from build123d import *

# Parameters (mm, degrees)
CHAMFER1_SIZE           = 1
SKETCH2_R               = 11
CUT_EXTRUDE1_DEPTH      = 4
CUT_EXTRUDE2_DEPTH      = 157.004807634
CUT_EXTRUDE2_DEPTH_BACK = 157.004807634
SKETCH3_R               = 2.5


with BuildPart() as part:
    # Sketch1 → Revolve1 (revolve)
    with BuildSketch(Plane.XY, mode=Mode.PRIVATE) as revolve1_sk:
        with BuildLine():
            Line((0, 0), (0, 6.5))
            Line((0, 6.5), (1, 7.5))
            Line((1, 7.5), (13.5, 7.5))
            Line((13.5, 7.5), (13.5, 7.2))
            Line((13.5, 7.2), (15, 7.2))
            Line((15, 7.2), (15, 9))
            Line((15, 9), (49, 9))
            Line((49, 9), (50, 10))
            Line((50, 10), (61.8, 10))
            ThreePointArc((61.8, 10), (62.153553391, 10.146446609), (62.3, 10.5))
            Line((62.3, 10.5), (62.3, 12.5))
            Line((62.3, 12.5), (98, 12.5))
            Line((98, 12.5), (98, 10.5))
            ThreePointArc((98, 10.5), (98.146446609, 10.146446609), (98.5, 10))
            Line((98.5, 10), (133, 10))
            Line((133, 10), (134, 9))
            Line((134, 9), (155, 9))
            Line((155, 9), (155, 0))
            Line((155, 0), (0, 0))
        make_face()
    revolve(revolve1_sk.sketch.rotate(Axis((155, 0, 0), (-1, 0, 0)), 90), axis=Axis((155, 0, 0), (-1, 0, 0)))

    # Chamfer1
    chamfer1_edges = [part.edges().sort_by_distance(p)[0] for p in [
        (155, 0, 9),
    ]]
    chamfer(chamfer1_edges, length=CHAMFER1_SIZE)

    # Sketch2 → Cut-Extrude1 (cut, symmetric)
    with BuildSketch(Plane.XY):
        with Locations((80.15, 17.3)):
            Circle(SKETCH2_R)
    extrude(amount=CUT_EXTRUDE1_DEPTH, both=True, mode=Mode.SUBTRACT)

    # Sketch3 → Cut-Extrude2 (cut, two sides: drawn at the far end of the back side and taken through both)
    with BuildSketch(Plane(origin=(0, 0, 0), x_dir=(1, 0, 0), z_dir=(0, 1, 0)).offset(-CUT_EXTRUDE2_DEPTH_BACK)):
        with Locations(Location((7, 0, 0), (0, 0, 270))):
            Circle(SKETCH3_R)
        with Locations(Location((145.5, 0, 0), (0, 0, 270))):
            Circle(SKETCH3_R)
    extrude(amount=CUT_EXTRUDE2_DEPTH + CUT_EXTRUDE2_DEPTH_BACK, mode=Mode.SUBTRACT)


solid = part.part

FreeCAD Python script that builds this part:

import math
import FreeCAD as App
import Part
import Sketcher
Q = App.Units.Quantity


def edges_at(feature, points):
    """Names of the edges that pass closest to the given points."""
    edges = feature.Shape.Edges
    near = lambda p: min(range(len(edges)), key=lambda i: edges[i].distToShape(Part.Vertex(*p))[0])
    return sorted({f"Edge{near(p) + 1}" for p in points})

doc = App.newDocument("Part")
body = doc.addObject("PartDesign::Body", "Body")

# Sketch on XY plane
sketch1 = doc.addObject("Sketcher::SketchObject", "Sketch")
body.addObject(sketch1)
sketch1.AttachmentSupport = (doc.XY_Plane, [""])
sketch1.MapMode = "FlatFace"
sketch1.addGeometry([
    Part.LineSegment(App.Vector(0, 6.5, 0), App.Vector(0, 0, 0)),  # 0
    Part.LineSegment(App.Vector(0, 0, 0), App.Vector(155, 0, 0)),  # 1
    Part.LineSegment(App.Vector(155, 0, 0), App.Vector(155, 9, 0)),  # 2
    Part.LineSegment(App.Vector(155, 9, 0), App.Vector(134, 9, 0)),  # 3
    Part.LineSegment(App.Vector(134, 9, 0), App.Vector(133, 10, 0)),  # 4
    Part.LineSegment(App.Vector(133, 10, 0), App.Vector(98.5, 10, 0)),  # 5
    Part.ArcOfCircle(Part.Circle(App.Vector(98.5, 10.5, 0), App.Vector(0, 0, 1), 0.5), math.radians(180), math.radians(270)),  # 6
    Part.LineSegment(App.Vector(98, 10.5, 0), App.Vector(98, 12.5, 0)),  # 7
    Part.LineSegment(App.Vector(98, 12.5, 0), App.Vector(62.3, 12.5, 0)),  # 8
    Part.LineSegment(App.Vector(62.3, 12.5, 0), App.Vector(62.3, 10.5, 0)),  # 9
    Part.ArcOfCircle(Part.Circle(App.Vector(61.8, 10.5, 0), App.Vector(0, 0, 1), 0.5), math.radians(-90), math.radians(0)),  # 10
    Part.LineSegment(App.Vector(61.8, 10, 0), App.Vector(50, 10, 0)),  # 11
    Part.LineSegment(App.Vector(50, 10, 0), App.Vector(49, 9, 0)),  # 12
    Part.LineSegment(App.Vector(49, 9, 0), App.Vector(15, 9, 0)),  # 13
    Part.LineSegment(App.Vector(15, 9, 0), App.Vector(15, 7.2, 0)),  # 14
    Part.LineSegment(App.Vector(15, 7.2, 0), App.Vector(13.5, 7.2, 0)),  # 15
    Part.LineSegment(App.Vector(13.5, 7.2, 0), App.Vector(13.5, 7.5, 0)),  # 16
    Part.LineSegment(App.Vector(13.5, 7.5, 0), App.Vector(1, 7.5, 0)),  # 17
    Part.LineSegment(App.Vector(1, 7.5, 0), App.Vector(0, 6.5, 0)),  # 18
], False)
sketch1.addConstraint([
    Sketcher.Constraint("Coincident", 0, 2, 1, 1),
    Sketcher.Constraint("Coincident", 1, 2, 2, 1),
    Sketcher.Constraint("Coincident", 2, 2, 3, 1),
    Sketcher.Constraint("Coincident", 3, 2, 4, 1),
    Sketcher.Constraint("Coincident", 4, 2, 5, 1),
    Sketcher.Constraint("Tangent", 5, 2, 6, 2),
    Sketcher.Constraint("Tangent", 6, 1, 7, 1),
    Sketcher.Constraint("Coincident", 7, 2, 8, 1),
    Sketcher.Constraint("Coincident", 8, 2, 9, 1),
    Sketcher.Constraint("Tangent", 9, 2, 10, 2),
    Sketcher.Constraint("Tangent", 10, 1, 11, 1),
    Sketcher.Constraint("Coincident", 11, 2, 12, 1),
    Sketcher.Constraint("Coincident", 12, 2, 13, 1),
    Sketcher.Constraint("Coincident", 13, 2, 14, 1),
    Sketcher.Constraint("Coincident", 14, 2, 15, 1),
    Sketcher.Constraint("Coincident", 15, 2, 16, 1),
    Sketcher.Constraint("Coincident", 16, 2, 17, 1),
    Sketcher.Constraint("Coincident", 17, 2, 18, 1),
    Sketcher.Constraint("Coincident", 18, 2, 0, 1),
    Sketcher.Constraint("Vertical", 0),
    Sketcher.Constraint("Horizontal", 1),
    Sketcher.Constraint("Vertical", 2),
    Sketcher.Constraint("Horizontal", 3),
    Sketcher.Constraint("Horizontal", 5),
    Sketcher.Constraint("Vertical", 7),
    Sketcher.Constraint("Horizontal", 8),
    Sketcher.Constraint("Vertical", 9),
    Sketcher.Constraint("Horizontal", 11),
    Sketcher.Constraint("Horizontal", 13),
    Sketcher.Constraint("Vertical", 14),
    Sketcher.Constraint("Horizontal", 15),
    Sketcher.Constraint("Vertical", 16),
    Sketcher.Constraint("Horizontal", 17),
    Sketcher.Constraint("Coincident", 0, 2, -1, 1),
    Sketcher.Constraint("Equal", 6, 10),
    Sketcher.Constraint("Perpendicular", 4, 12),
    Sketcher.Constraint("Parallel", 12, 18),
    Sketcher.Constraint("Horizontal", 6, 3, 10, 3),
    Sketcher.Constraint("Horizontal", 3, 2, 12, 2),
    Sketcher.Constraint("Equal", 4, 12),
    Sketcher.Constraint("Equal", 12, 18),
    Sketcher.Constraint("Radius", 6, Q("0.5 mm")),
    Sketcher.Constraint("DistanceX", 1, 1, 1, 2, Q("155 mm")),
    Sketcher.Constraint("DistanceX", 3, 2, 3, 1, Q("21 mm")),
    Sketcher.Constraint("DistanceX", 13, 2, 13, 1, Q("34 mm")),
    Sketcher.Constraint("DistanceY", 2, 1, 2, 2, Q("9 mm")),
    Sketcher.Constraint("DistanceY", 7, 1, 7, 2, Q("2 mm")),
    Sketcher.Constraint("DistanceX", 5, 2, 5, 1, Q("34.5 mm")),
    Sketcher.Constraint("DistanceX", 8, 2, 8, 1, Q("35.7 mm")),
    Sketcher.Constraint("DistanceX", 11, 2, 11, 1, Q("11.8 mm")),
    Sketcher.Constraint("DistanceX", 15, 2, 15, 1, Q("1.5 mm")),
    Sketcher.Constraint("DistanceX", 17, 2, 17, 1, Q("12.5 mm")),
    Sketcher.Constraint("DistanceY", 0, 2, 0, 1, Q("6.5 mm")),
    Sketcher.Constraint("DistanceY", 14, 2, 14, 1, Q("1.8 mm")),
])
revolution = doc.addObject("PartDesign::Revolution", "Revolution")
body.addObject(revolution)
revolution.Profile = sketch1
revolution.ReferenceAxis = (sketch1, ["H_Axis"])
revolution.Angle = 360
doc.recompute()

chamfer = doc.addObject("PartDesign::Chamfer", "Chamfer")
body.addObject(chamfer)
chamfer.Base = (revolution, edges_at(revolution, [(155, 0, 9)]))
chamfer.Size = 1

# Sketch on XY plane
sketch2 = doc.addObject("Sketcher::SketchObject", "Sketch001")
body.addObject(sketch2)
sketch2.AttachmentSupport = (doc.XY_Plane, [""])
sketch2.MapMode = "FlatFace"
sketch2.addGeometry(Part.Circle(App.Vector(80, 17, 0), App.Vector(0, 0, 1), 11), False)
sketch2.addConstraint([
    Sketcher.Constraint("Diameter", 0, Q("22 mm")),
    Sketcher.Constraint("DistanceY", -1, 1, 0, 3, Q("17.3 mm")),
    Sketcher.Constraint("DistanceX", -1, 1, 0, 3, Q("80.15 mm")),
])
pocket1 = doc.addObject("PartDesign::Pocket", "Pocket")
body.addObject(pocket1)
pocket1.Profile = sketch2
pocket1.Length = 8
pocket1.Midplane = True

# Sketch on XZ plane
sketch3 = doc.addObject("Sketcher::SketchObject", "Sketch002")
body.addObject(sketch3)
sketch3.AttachmentSupport = (doc.XZ_Plane, [""])
sketch3.MapMode = "FlatFace"
sketch3.addGeometry([
    Part.Circle(App.Vector(7, 0, 0), App.Vector(0, 0, 1), 2.5),
    Part.Circle(App.Vector(145.5, 0, 0), App.Vector(0, 0, 1), 2.5),
], False)
sketch3.addConstraint([
    Sketcher.Constraint("Equal", 0, 1),
    Sketcher.Constraint("PointOnObject", 0, 3, -1),
    Sketcher.Constraint("PointOnObject", 1, 3, -1),
    Sketcher.Constraint("Diameter", 0, Q("5 mm")),
    Sketcher.Constraint("DistanceX", -1, 1, 0, 3, Q("7 mm")),
    Sketcher.Constraint("DistanceX", -1, 1, 1, 3, Q("145.5 mm")),
])
pocket2 = doc.addObject("PartDesign::Pocket", "Pocket001")
body.addObject(pocket2)
pocket2.Profile = sketch3
pocket2.Type = "ThroughAll"
pocket2.Midplane = True

doc.recompute()
